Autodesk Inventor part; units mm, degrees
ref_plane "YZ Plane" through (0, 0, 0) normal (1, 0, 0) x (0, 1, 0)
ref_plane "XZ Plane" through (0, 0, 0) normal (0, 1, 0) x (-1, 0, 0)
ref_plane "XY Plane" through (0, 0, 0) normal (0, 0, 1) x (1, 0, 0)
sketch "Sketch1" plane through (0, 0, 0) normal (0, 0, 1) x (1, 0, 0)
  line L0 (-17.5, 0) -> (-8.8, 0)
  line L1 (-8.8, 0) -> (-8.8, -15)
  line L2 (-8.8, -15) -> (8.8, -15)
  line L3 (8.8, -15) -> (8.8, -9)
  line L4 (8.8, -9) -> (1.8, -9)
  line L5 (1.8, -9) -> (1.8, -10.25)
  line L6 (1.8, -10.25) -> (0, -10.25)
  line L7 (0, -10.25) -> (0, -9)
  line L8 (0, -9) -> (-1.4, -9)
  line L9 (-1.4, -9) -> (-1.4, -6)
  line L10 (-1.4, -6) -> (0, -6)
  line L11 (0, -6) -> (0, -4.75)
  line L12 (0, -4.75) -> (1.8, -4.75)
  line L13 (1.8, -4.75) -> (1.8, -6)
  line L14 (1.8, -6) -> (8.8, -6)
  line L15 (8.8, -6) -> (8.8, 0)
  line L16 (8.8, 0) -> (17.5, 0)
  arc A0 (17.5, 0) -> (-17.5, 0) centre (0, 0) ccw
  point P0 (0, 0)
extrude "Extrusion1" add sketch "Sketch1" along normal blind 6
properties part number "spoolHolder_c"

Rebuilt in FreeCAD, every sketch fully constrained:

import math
import FreeCAD as App
import Part
import Sketcher
Q = App.Units.Quantity

doc = App.newDocument("Part")
body = doc.addObject("PartDesign::Body", "Body")

sketch1 = doc.addObject("Sketcher::SketchObject", "Sketch")
body.addObject(sketch1)
sketch1.AttachmentSupport = (doc.XY_Plane, [""])
sketch1.MapMode = "FlatFace"
sketch1.addGeometry(Part.ArcOfCircle(Part.Circle(App.Vector(0, 0, 0), App.Vector(0, 0, 1), 17.5), math.radians(0), math.radians(180)), False)
sketch1.addGeometry(Part.LineSegment(App.Vector(-17.5, 0, 0), App.Vector(-8.8, 0, 0)), False)
sketch1.addGeometry(Part.LineSegment(App.Vector(-8.8, 0, 0), App.Vector(-8.8, -15, 0)), False)
sketch1.addGeometry(Part.LineSegment(App.Vector(-8.8, -15, 0), App.Vector(8.8, -15, 0)), False)
sketch1.addGeometry(Part.LineSegment(App.Vector(8.8, -15, 0), App.Vector(8.8, -9, 0)), False)
sketch1.addGeometry(Part.LineSegment(App.Vector(8.8, -9, 0), App.Vector(1.8, -9, 0)), False)
sketch1.addGeometry(Part.LineSegment(App.Vector(1.8, -9, 0), App.Vector(1.8, -10.2, 0)), False)
sketch1.addGeometry(Part.LineSegment(App.Vector(1.8, -10.2, 0), App.Vector(0, -10.2, 0)), False)
sketch1.addGeometry(Part.LineSegment(App.Vector(0, -10.2, 0), App.Vector(0, -9, 0)), False)
sketch1.addGeometry(Part.LineSegment(App.Vector(0, -9, 0), App.Vector(-1.4, -9, 0)), False)
sketch1.addGeometry(Part.LineSegment(App.Vector(-1.4, -9, 0), App.Vector(-1.4, -6, 0)), False)
sketch1.addGeometry(Part.LineSegment(App.Vector(-1.4, -6, 0), App.Vector(0, -6, 0)), False)
sketch1.addGeometry(Part.LineSegment(App.Vector(0, -6, 0), App.Vector(0, -4.8, 0)), False)
sketch1.addGeometry(Part.LineSegment(App.Vector(0, -4.8, 0), App.Vector(1.8, -4.8, 0)), False)
sketch1.addGeometry(Part.LineSegment(App.Vector(1.8, -4.8, 0), App.Vector(1.8, -6, 0)), False)
sketch1.addGeometry(Part.LineSegment(App.Vector(1.8, -6, 0), App.Vector(8.8, -6, 0)), False)
sketch1.addGeometry(Part.LineSegment(App.Vector(8.8, -6, 0), App.Vector(8.8, 0, 0)), False)
sketch1.addGeometry(Part.LineSegment(App.Vector(8.8, 0, 0), App.Vector(17.5, 0, 0)), False)
sketch1.addConstraint(Sketcher.Constraint("Coincident", 0, 2, 1, 1))
sketch1.addConstraint(Sketcher.Constraint("Coincident", 1, 2, 2, 1))
sketch1.addConstraint(Sketcher.Constraint("Coincident", 2, 2, 3, 1))
sketch1.addConstraint(Sketcher.Constraint("Coincident", 3, 2, 4, 1))
sketch1.addConstraint(Sketcher.Constraint("Coincident", 4, 2, 5, 1))
sketch1.addConstraint(Sketcher.Constraint("Coincident", 5, 2, 6, 1))
sketch1.addConstraint(Sketcher.Constraint("Coincident", 6, 2, 7, 1))
sketch1.addConstraint(Sketcher.Constraint("Coincident", 7, 2, 8, 1))
sketch1.addConstraint(Sketcher.Constraint("Coincident", 8, 2, 9, 1))
sketch1.addConstraint(Sketcher.Constraint("Coincident", 9, 2, 10, 1))
sketch1.addConstraint(Sketcher.Constraint("Coincident", 10, 2, 11, 1))
sketch1.addConstraint(Sketcher.Constraint("Coincident", 11, 2, 12, 1))
sketch1.addConstraint(Sketcher.Constraint("Coincident", 12, 2, 13, 1))
sketch1.addConstraint(Sketcher.Constraint("Coincident", 13, 2, 14, 1))
sketch1.addConstraint(Sketcher.Constraint("Coincident", 14, 2, 15, 1))
sketch1.addConstraint(Sketcher.Constraint("Coincident", 15, 2, 16, 1))
sketch1.addConstraint(Sketcher.Constraint("Coincident", 16, 2, 17, 1))
sketch1.addConstraint(Sketcher.Constraint("Coincident", 17, 2, 0, 1))
sketch1.addConstraint(Sketcher.Constraint("Horizontal", 1))
sketch1.addConstraint(Sketcher.Constraint("Vertical", 2))
sketch1.addConstraint(Sketcher.Constraint("Horizontal", 3))
sketch1.addConstraint(Sketcher.Constraint("Vertical", 4))
sketch1.addConstraint(Sketcher.Constraint("Horizontal", 5))
sketch1.addConstraint(Sketcher.Constraint("Vertical", 6))
sketch1.addConstraint(Sketcher.Constraint("Horizontal", 7))
sketch1.addConstraint(Sketcher.Constraint("Vertical", 8))
sketch1.addConstraint(Sketcher.Constraint("Horizontal", 9))
sketch1.addConstraint(Sketcher.Constraint("Vertical", 10))
sketch1.addConstraint(Sketcher.Constraint("Horizontal", 11))
sketch1.addConstraint(Sketcher.Constraint("Vertical", 12))
sketch1.addConstraint(Sketcher.Constraint("Horizontal", 13))
sketch1.addConstraint(Sketcher.Constraint("Vertical", 14))
sketch1.addConstraint(Sketcher.Constraint("Horizontal", 15))
sketch1.addConstraint(Sketcher.Constraint("Vertical", 16))
sketch1.addConstraint(Sketcher.Constraint("Horizontal", 17))
sketch1.addConstraint(Sketcher.Constraint("Coincident", 0, 3, -1, 1))
sketch1.addConstraint(Sketcher.Constraint("Symmetric", 1, 2, 16, 2, -1, 1))
sketch1.addConstraint(Sketcher.Constraint("PointOnObject", 0, 2, -1))
sketch1.addConstraint(Sketcher.Constraint("PointOnObject", 7, 2, -2))
sketch1.addConstraint(Sketcher.Constraint("PointOnObject", 11, 2, -2))
sketch1.addConstraint(Sketcher.Constraint("Horizontal", 5, 2, 8, 2))
sketch1.addConstraint(Sketcher.Constraint("Horizontal", 11, 2, 14, 2))
sketch1.addConstraint(Sketcher.Constraint("Vertical", 6, 2, 13, 2))
sketch1.addConstraint(Sketcher.Constraint("Vertical", 4, 2, 15, 2))
sketch1.addConstraint(Sketcher.Constraint("Equal", 8, 12))
sketch1.addConstraint(Sketcher.Constraint("Equal", 4, 16))
sketch1.addConstraint(Sketcher.Constraint("Radius", 0, Q("17.5 mm")))
sketch1.addConstraint(Sketcher.Constraint("DistanceX", 5, 2, 5, 1, Q("7 mm")))
sketch1.addConstraint(Sketcher.Constraint("DistanceY", 2, 2, 2, 1, Q("15 mm")))
sketch1.addConstraint(Sketcher.Constraint("DistanceY", 4, 1, 4, 2, Q("6 mm")))
sketch1.addConstraint(Sketcher.Constraint("DistanceX", 1, 1, 1, 2, Q("8.7 mm")))
sketch1.addConstraint(Sketcher.Constraint("DistanceX", 9, 2, 9, 1, Q("1.4 mm")))
sketch1.addConstraint(Sketcher.Constraint("DistanceY", 6, 2, 6, 1, Q("1.25 mm")))
pad1 = doc.addObject("PartDesign::Pad", "Pad")
body.addObject(pad1)
pad1.Profile = sketch1
pad1.Length = 6

doc.recompute()
